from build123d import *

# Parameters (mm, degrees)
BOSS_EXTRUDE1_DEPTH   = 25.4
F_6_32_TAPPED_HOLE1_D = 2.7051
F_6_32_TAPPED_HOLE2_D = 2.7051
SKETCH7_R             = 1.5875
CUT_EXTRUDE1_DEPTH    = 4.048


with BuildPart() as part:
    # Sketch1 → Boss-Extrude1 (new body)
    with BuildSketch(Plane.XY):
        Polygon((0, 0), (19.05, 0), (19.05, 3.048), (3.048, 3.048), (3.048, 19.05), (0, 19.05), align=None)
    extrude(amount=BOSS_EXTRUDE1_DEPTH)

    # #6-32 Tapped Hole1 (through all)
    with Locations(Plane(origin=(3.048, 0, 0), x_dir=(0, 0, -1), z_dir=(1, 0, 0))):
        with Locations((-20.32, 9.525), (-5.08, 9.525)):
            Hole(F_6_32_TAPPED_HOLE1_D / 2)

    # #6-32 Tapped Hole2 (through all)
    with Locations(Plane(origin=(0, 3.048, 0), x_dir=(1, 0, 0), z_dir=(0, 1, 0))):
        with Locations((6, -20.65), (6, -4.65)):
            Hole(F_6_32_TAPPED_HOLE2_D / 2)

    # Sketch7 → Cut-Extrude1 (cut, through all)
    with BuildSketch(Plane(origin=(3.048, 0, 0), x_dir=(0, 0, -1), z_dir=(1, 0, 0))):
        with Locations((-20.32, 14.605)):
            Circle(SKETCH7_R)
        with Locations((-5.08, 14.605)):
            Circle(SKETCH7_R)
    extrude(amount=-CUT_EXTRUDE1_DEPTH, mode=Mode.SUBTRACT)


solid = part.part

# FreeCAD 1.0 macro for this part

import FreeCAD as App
import Part
import Sketcher
from FreeCAD import Vector
Q = App.Units.Quantity


def add_polygon(sketch, points):
    """Adds a closed chain of lines whose ends are joined by coincident constraints."""
    first, n = sketch.GeometryCount, len(points)
    for a, b in zip(points, points[1:] + points[:1]):
        sketch.addGeometry(Part.LineSegment(App.Vector(*a, 0), App.Vector(*b, 0)), False)
    for i in range(n):
        sketch.addConstraint(Sketcher.Constraint("Coincident", first + i, 2, first + (i + 1) % n, 1))

doc = App.newDocument("Part")
body = doc.addObject("PartDesign::Body", "Body")

# Sketch on XY plane
sketch1 = doc.addObject("Sketcher::SketchObject", "Sketch")
body.addObject(sketch1)
sketch1.AttachmentSupport = (doc.XY_Plane, [""])
sketch1.MapMode = "FlatFace"
add_polygon(sketch1, [(0, 0), (19.05, 0), (19.05, 3.048), (3.048, 3.048), (3.048, 19.05), (0, 19.05)])  # lines 0-5
sketch1.addConstraint(Sketcher.Constraint("Horizontal", 0))
sketch1.addConstraint(Sketcher.Constraint("Vertical", 1))
sketch1.addConstraint(Sketcher.Constraint("Horizontal", 2))
sketch1.addConstraint(Sketcher.Constraint("Vertical", 3))
sketch1.addConstraint(Sketcher.Constraint("Horizontal", 4))
sketch1.addConstraint(Sketcher.Constraint("Vertical", 5))
sketch1.addConstraint(Sketcher.Constraint("Coincident", 5, 2, -1, 1))
sketch1.addConstraint(Sketcher.Constraint("Equal", 4, 1))
sketch1.addConstraint(Sketcher.Constraint("Equal", 2, 3))
sketch1.addConstraint(Sketcher.Constraint("DistanceX", 0, 1, 0, 2, Q("0.75 in")))
sketch1.addConstraint(Sketcher.Constraint("DistanceX", 2, 2, 2, 1, Q("0.63 in")))
pad1 = doc.addObject("PartDesign::Pad", "Pad")
body.addObject(pad1)
pad1.Profile = sketch1
pad1.Length = Q("1 in")

# Sketch on YZ plane
sketch2 = doc.addObject("Sketcher::SketchObject", "Sketch001")
body.addObject(sketch2)
sketch2.AttachmentSupport = (doc.YZ_Plane, [""])
sketch2.MapMode = "FlatFace"
sketch2.AttachmentOffset = App.Placement(Vector(0, 0, 0.12 * 25.4), App.Rotation())
sketch2.addGeometry(Part.Circle(Vector(9.525, 20.32, 0), Vector(0, 0, 1), 1.35255), False)
sketch2.addGeometry(Part.Circle(Vector(9.525, 5.08, 0), Vector(0, 0, 1), 1.35255), False)
sketch2.addConstraint(Sketcher.Constraint("Equal", 0, 1))
sketch2.addConstraint(Sketcher.Constraint("Vertical", 0, 3, 1, 3))
sketch2.addConstraint(Sketcher.Constraint("Diameter", 0, Q("0.1065 in")))
sketch2.addConstraint(Sketcher.Constraint("DistanceY", -1, 1, 0, 3, Q("0.8 in")))
sketch2.addConstraint(Sketcher.Constraint("DistanceY", -1, 1, 1, 3, Q("0.2 in")))
sketch2.addConstraint(Sketcher.Constraint("DistanceX", -1, 1, 0, 3, Q("0.375 in")))
doc.recompute()
hole = doc.addObject("PartDesign::Hole", "Hole")
body.addObject(hole)
hole.Profile = sketch2
hole.ThreadType = "None"
hole.Diameter = Q("0.1065 in")
hole.DepthType = "ThroughAll"

# Sketch on XZ plane
sketch3 = doc.addObject("Sketcher::SketchObject", "Sketch002")
body.addObject(sketch3)
sketch3.AttachmentSupport = (doc.XZ_Plane, [""])
sketch3.MapMode = "FlatFace"
sketch3.AttachmentOffset = App.Placement(Vector(0, 0, -0.12 * 25.4), App.Rotation())
sketch3.addGeometry(Part.Circle(Vector(6, 20.65, 0), Vector(0, 0, 1), 1.35255), False)
sketch3.addGeometry(Part.Circle(Vector(6, 4.65, 0), Vector(0, 0, 1), 1.35255), False)
sketch3.addConstraint(Sketcher.Constraint("Equal", 0, 1))
sketch3.addConstraint(Sketcher.Constraint("Vertical", 0, 3, 1, 3))
sketch3.addConstraint(Sketcher.Constraint("Diameter", 0, Q("0.1065 in")))
sketch3.addConstraint(Sketcher.Constraint("DistanceX", -1, 1, 0, 3, Q("6 mm")))
sketch3.addConstraint(Sketcher.Constraint("DistanceY", -1, 1, 0, 3, Q("20.65 mm")))
sketch3.addConstraint(Sketcher.Constraint("DistanceY", -1, 1, 1, 3, Q("4.65 mm")))
doc.recompute()
hole2 = doc.addObject("PartDesign::Hole", "Hole001")
body.addObject(hole2)
hole2.Profile = sketch3
hole2.ThreadType = "None"
hole2.Diameter = Q("0.1065 in")
hole2.DepthType = "ThroughAll"
hole2.Reversed = True

# Sketch on YZ plane
sketch4 = doc.addObject("Sketcher::SketchObject", "Sketch003")
body.addObject(sketch4)
sketch4.AttachmentSupport = (doc.YZ_Plane, [""])
sketch4.MapMode = "FlatFace"
sketch4.AttachmentOffset = App.Placement(Vector(0, 0, 0.12 * 25.4), App.Rotation())
sketch4.addGeometry(Part.Circle(Vector(14.605, 20.32, 0), Vector(0, 0, 1), 1.5875), False)
sketch4.addGeometry(Part.Circle(Vector(14.605, 5.08, 0), Vector(0, 0, 1), 1.5875), False)
sketch4.addConstraint(Sketcher.Constraint("Equal", 0, 1))
sketch4.addConstraint(Sketcher.Constraint("Vertical", 0, 3, 1, 3))
sketch4.addConstraint(Sketcher.Constraint("Diameter", 0, Q("0.125 in")))
sketch4.addConstraint(Sketcher.Constraint("DistanceY", -1, 1, 0, 3, Q("0.8 in")))
sketch4.addConstraint(Sketcher.Constraint("DistanceY", -1, 1, 1, 3, Q("0.2 in")))
sketch4.addConstraint(Sketcher.Constraint("DistanceX", -1, 1, 0, 3, Q("0.575 in")))
pocket1 = doc.addObject("PartDesign::Pocket", "Pocket")
body.addObject(pocket1)
pocket1.Profile = sketch4
pocket1.Type = "ThroughAll"

doc.recompute()
